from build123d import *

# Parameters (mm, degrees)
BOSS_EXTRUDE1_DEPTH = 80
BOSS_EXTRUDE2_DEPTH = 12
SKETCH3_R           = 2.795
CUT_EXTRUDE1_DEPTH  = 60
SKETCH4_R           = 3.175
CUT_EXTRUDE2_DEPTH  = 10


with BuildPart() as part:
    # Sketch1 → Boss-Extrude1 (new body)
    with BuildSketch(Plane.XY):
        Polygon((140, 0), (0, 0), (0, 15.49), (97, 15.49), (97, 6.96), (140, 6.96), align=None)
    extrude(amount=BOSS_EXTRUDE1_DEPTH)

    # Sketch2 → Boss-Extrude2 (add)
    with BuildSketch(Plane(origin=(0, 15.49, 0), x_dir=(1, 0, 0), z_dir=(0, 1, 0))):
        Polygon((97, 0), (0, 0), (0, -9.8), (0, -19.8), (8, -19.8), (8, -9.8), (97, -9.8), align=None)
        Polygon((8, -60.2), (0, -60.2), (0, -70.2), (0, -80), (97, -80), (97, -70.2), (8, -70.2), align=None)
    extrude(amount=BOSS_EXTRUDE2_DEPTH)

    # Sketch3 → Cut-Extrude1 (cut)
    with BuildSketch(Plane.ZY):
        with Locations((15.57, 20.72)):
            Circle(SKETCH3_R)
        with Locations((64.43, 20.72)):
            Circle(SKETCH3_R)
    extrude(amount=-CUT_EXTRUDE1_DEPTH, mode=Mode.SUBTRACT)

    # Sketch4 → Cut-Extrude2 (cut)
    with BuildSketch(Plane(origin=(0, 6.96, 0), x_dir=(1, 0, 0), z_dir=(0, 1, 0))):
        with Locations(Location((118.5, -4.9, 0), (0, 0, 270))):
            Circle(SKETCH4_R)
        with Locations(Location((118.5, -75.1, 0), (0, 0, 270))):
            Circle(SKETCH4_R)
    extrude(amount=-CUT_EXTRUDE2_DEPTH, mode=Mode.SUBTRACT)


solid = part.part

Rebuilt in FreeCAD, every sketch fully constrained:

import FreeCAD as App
import Part
import Sketcher

V = App.Vector

doc = App.newDocument("Part")
body = doc.addObject("PartDesign::Body", "Body")

sketch1 = body.newObject("Sketcher::SketchObject", "Sketch")
sketch1.AttachmentSupport = (doc.getObject("XY_Plane"), [""])
sketch1.MapMode = "FlatFace"
sketch1.addGeometry(Part.LineSegment(V(0, 0, 0), V(140, 0, 0)), False)
sketch1.addGeometry(Part.LineSegment(V(140, 0, 0), V(140, 7, 0)), False)
sketch1.addGeometry(Part.LineSegment(V(140, 7, 0), V(97, 7, 0)), False)
sketch1.addGeometry(Part.LineSegment(V(97, 7, 0), V(97, 15, 0)), False)
sketch1.addGeometry(Part.LineSegment(V(97, 15, 0), V(0, 15, 0)), False)
sketch1.addGeometry(Part.LineSegment(V(0, 15, 0), V(0, 0, 0)), False)
sketch1.addConstraint(Sketcher.Constraint("Coincident", 0, 2, 1, 1))
sketch1.addConstraint(Sketcher.Constraint("Coincident", 1, 2, 2, 1))
sketch1.addConstraint(Sketcher.Constraint("Coincident", 2, 2, 3, 1))
sketch1.addConstraint(Sketcher.Constraint("Coincident", 3, 2, 4, 1))
sketch1.addConstraint(Sketcher.Constraint("Coincident", 4, 2, 5, 1))
sketch1.addConstraint(Sketcher.Constraint("Coincident", 5, 2, 0, 1))
sketch1.addConstraint(Sketcher.Constraint("Horizontal", 0))
sketch1.addConstraint(Sketcher.Constraint("Vertical", 1))
sketch1.addConstraint(Sketcher.Constraint("Horizontal", 2))
sketch1.addConstraint(Sketcher.Constraint("Vertical", 3))
sketch1.addConstraint(Sketcher.Constraint("Horizontal", 4))
sketch1.addConstraint(Sketcher.Constraint("Vertical", 5))
sketch1.addConstraint(Sketcher.Constraint("Coincident", 5, 2, -1, 1))
sketch1.addConstraint(Sketcher.Constraint("DistanceX", 0, 1, 0, 2, 140.0))
sketch1.addConstraint(Sketcher.Constraint("DistanceX", 2, 2, 2, 1, 43.0))
sketch1.addConstraint(Sketcher.Constraint("DistanceY", 1, 1, 1, 2, 6.96))
sketch1.addConstraint(Sketcher.Constraint("DistanceY", 3, 1, 3, 2, 8.53))
pad1 = body.newObject("PartDesign::Pad", "Pad")
pad1.Profile = sketch1
pad1.Length = 80

sketch2 = body.newObject("Sketcher::SketchObject", "Sketch001")
sketch2.AttachmentSupport = (doc.getObject("XZ_Plane"), [""])
sketch2.MapMode = "FlatFace"
sketch2.AttachmentOffset = App.Placement(V(0, 0, -15.49), App.Rotation())
sketch2.addGeometry(Part.LineSegment(V(97, 0, 0), V(0, 0, 0)), False)
sketch2.addGeometry(Part.LineSegment(V(0, 0, 0), V(0, 20, 0)), False)
sketch2.addGeometry(Part.LineSegment(V(0, 20, 0), V(8, 20, 0)), False)
sketch2.addGeometry(Part.LineSegment(V(8, 20, 0), V(8, 10, 0)), False)
sketch2.addGeometry(Part.LineSegment(V(8, 10, 0), V(97, 10, 0)), False)
sketch2.addGeometry(Part.LineSegment(V(97, 10, 0), V(97, 0, 0)), False)
sketch2.addGeometry(Part.LineSegment(V(8, 60, 0), V(0, 60, 0)), False)
sketch2.addGeometry(Part.LineSegment(V(0, 60, 0), V(0, 80, 0)), False)
sketch2.addGeometry(Part.LineSegment(V(0, 80, 0), V(97, 80, 0)), False)
sketch2.addGeometry(Part.LineSegment(V(97, 80, 0), V(97, 70, 0)), False)
sketch2.addGeometry(Part.LineSegment(V(97, 70, 0), V(8, 70, 0)), False)
sketch2.addGeometry(Part.LineSegment(V(8, 70, 0), V(8, 60, 0)), False)
sketch2.addConstraint(Sketcher.Constraint("Coincident", 0, 2, 1, 1))
sketch2.addConstraint(Sketcher.Constraint("Coincident", 1, 2, 2, 1))
sketch2.addConstraint(Sketcher.Constraint("Coincident", 2, 2, 3, 1))
sketch2.addConstraint(Sketcher.Constraint("Coincident", 3, 2, 4, 1))
sketch2.addConstraint(Sketcher.Constraint("Coincident", 4, 2, 5, 1))
sketch2.addConstraint(Sketcher.Constraint("Coincident", 5, 2, 0, 1))
sketch2.addConstraint(Sketcher.Constraint("Coincident", 6, 2, 7, 1))
sketch2.addConstraint(Sketcher.Constraint("Coincident", 7, 2, 8, 1))
sketch2.addConstraint(Sketcher.Constraint("Coincident", 8, 2, 9, 1))
sketch2.addConstraint(Sketcher.Constraint("Coincident", 9, 2, 10, 1))
sketch2.addConstraint(Sketcher.Constraint("Coincident", 10, 2, 11, 1))
sketch2.addConstraint(Sketcher.Constraint("Coincident", 11, 2, 6, 1))
sketch2.addConstraint(Sketcher.Constraint("Horizontal", 0))
sketch2.addConstraint(Sketcher.Constraint("Vertical", 1))
sketch2.addConstraint(Sketcher.Constraint("Horizontal", 2))
sketch2.addConstraint(Sketcher.Constraint("Vertical", 3))
sketch2.addConstraint(Sketcher.Constraint("Horizontal", 4))
sketch2.addConstraint(Sketcher.Constraint("Vertical", 5))
sketch2.addConstraint(Sketcher.Constraint("Horizontal", 6))
sketch2.addConstraint(Sketcher.Constraint("Vertical", 7))
sketch2.addConstraint(Sketcher.Constraint("Horizontal", 8))
sketch2.addConstraint(Sketcher.Constraint("Vertical", 9))
sketch2.addConstraint(Sketcher.Constraint("Horizontal", 10))
sketch2.addConstraint(Sketcher.Constraint("Vertical", 11))
sketch2.addConstraint(Sketcher.Constraint("Coincident", 0, 2, -1, 1))
sketch2.addConstraint(Sketcher.Constraint("PointOnObject", 6, 2, -2))
sketch2.addConstraint(Sketcher.Constraint("Vertical", 5, 2, 8, 2))
sketch2.addConstraint(Sketcher.Constraint("Vertical", 3, 2, 10, 2))
sketch2.addConstraint(Sketcher.Constraint("Equal", 1, 7))
sketch2.addConstraint(Sketcher.Constraint("Equal", 5, 9))
sketch2.addConstraint(Sketcher.Constraint("DistanceX", 0, 2, 0, 1, 97.0))
sketch2.addConstraint(Sketcher.Constraint("DistanceX", 2, 1, 2, 2, 8.0))
sketch2.addConstraint(Sketcher.Constraint("DistanceY", 3, 2, 3, 1, 10.0))
sketch2.addConstraint(Sketcher.Constraint("DistanceY", 1, 1, 1, 2, 19.8))
sketch2.addConstraint(Sketcher.Constraint("DistanceY", -1, 1, 7, 2, 80.0))
pad2 = body.newObject("PartDesign::Pad", "Pad001")
pad2.Profile = sketch2
pad2.Length = 12
pad2.Reversed = True

sketch3 = body.newObject("Sketcher::SketchObject", "Sketch002")
sketch3.AttachmentSupport = (doc.getObject("YZ_Plane"), [""])
sketch3.MapMode = "FlatFace"
sketch3.addGeometry(Part.Circle(V(20.7, 15.6, 0), V(0, 0, 1), 2.8), False)
sketch3.addGeometry(Part.Circle(V(20.7, 64.4, 0), V(0, 0, 1), 2.8), False)
sketch3.addConstraint(Sketcher.Constraint("Equal", 0, 1))
sketch3.addConstraint(Sketcher.Constraint("Vertical", 0, 3, 1, 3))
sketch3.addConstraint(Sketcher.Constraint("Diameter", 0, 5.59))
sketch3.addConstraint(Sketcher.Constraint("DistanceX", -1, 1, 0, 3, 20.72))
sketch3.addConstraint(Sketcher.Constraint("DistanceY", -1, 1, 0, 3, 15.57))
sketch3.addConstraint(Sketcher.Constraint("DistanceY", -1, 1, 1, 3, 64.43))
pocket1 = body.newObject("PartDesign::Pocket", "Pocket")
pocket1.Profile = sketch3
pocket1.Length = 60
pocket1.Reversed = True

sketch4 = body.newObject("Sketcher::SketchObject", "Sketch003")
sketch4.AttachmentSupport = (doc.getObject("XZ_Plane"), [""])
sketch4.MapMode = "FlatFace"
sketch4.AttachmentOffset = App.Placement(V(0, 0, -6.96), App.Rotation())
sketch4.addGeometry(Part.Circle(V(118.5, 4.9, 0), V(0, 0, 1), 3.2), False)
sketch4.addGeometry(Part.Circle(V(118.5, 75.1, 0), V(0, 0, 1), 3.2), False)
sketch4.addConstraint(Sketcher.Constraint("Equal", 0, 1))
sketch4.addConstraint(Sketcher.Constraint("Vertical", 0, 3, 1, 3))
sketch4.addConstraint(Sketcher.Constraint("Diameter", 0, 6.35))
sketch4.addConstraint(Sketcher.Constraint("DistanceX", -1, 1, 0, 3, 118.5))
sketch4.addConstraint(Sketcher.Constraint("DistanceY", -1, 1, 0, 3, 4.9))
sketch4.addConstraint(Sketcher.Constraint("DistanceY", -1, 1, 1, 3, 75.1))
pocket2 = body.newObject("PartDesign::Pocket", "Pocket001")
pocket2.Profile = sketch4
pocket2.Length = 10
pocket2.Reversed = True

doc.recompute()
